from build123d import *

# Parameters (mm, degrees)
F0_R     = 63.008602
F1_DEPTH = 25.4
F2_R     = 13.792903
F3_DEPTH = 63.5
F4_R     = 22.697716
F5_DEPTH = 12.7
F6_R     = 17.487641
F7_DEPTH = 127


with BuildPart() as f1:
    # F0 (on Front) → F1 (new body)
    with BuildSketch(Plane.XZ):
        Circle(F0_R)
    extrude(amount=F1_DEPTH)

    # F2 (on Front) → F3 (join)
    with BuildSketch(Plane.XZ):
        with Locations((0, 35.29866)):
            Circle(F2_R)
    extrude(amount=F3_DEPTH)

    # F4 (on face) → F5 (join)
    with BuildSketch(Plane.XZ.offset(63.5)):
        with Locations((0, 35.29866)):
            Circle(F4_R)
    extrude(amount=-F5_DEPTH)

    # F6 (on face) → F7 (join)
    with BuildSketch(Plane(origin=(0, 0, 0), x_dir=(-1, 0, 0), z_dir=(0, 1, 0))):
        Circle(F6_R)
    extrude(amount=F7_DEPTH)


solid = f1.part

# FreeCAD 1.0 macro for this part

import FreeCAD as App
import Part
import Sketcher

doc = App.newDocument("Part")
params = doc.addObject("Spreadsheet::Sheet", "Params")
for row, (alias, value) in enumerate([
    ("pad1_length", "1 in"),
    ("pad2_length", "2.5 in"),
    ("pad3_length", "0.5 in"),
    ("pad4_length", "5 in"),
], start=1):
    params.set(f"A{row}", alias)
    params.set(f"B{row}", "=" + value)
    params.setAlias(f"B{row}", alias)

body = doc.addObject("PartDesign::Body", "Body")

# Sketch on XZ plane
sketch1 = body.newObject("Sketcher::SketchObject", "Sketch")
sketch1.AttachmentSupport = (doc.getObject("XZ_Plane"), [""])
sketch1.MapMode = "FlatFace"
sketch1.addGeometry(Part.Circle(App.Vector(0, 0, 0), App.Vector(0, 0, 1), 63), False)
sketch1.addConstraint([
    Sketcher.Constraint("Coincident", 0, 3, -1, 1),
    Sketcher.Constraint("Diameter", 0, 126.017204),
])
pad1 = body.newObject("PartDesign::Pad", "Pad")
pad1.Profile = sketch1
pad1.setExpression("Length", "Params.pad1_length")

# Sketch on XZ plane
sketch2 = body.newObject("Sketcher::SketchObject", "Sketch001")
sketch2.AttachmentSupport = (doc.getObject("XZ_Plane"), [""])
sketch2.MapMode = "FlatFace"
sketch2.addGeometry(Part.Circle(App.Vector(0, 35, 0), App.Vector(0, 0, 1), 14), False)
sketch2.addConstraint([
    Sketcher.Constraint("PointOnObject", 0, 3, -2),
    Sketcher.Constraint("Diameter", 0, 27.585806),
    Sketcher.Constraint("DistanceY", -1, 1, 0, 3, 35.29866),
])
pad2 = body.newObject("PartDesign::Pad", "Pad001")
pad2.Profile = sketch2
pad2.setExpression("Length", "Params.pad2_length")

# Sketch on XZ plane
sketch3 = body.newObject("Sketcher::SketchObject", "Sketch002")
sketch3.AttachmentSupport = (doc.getObject("XZ_Plane"), [""])
sketch3.MapMode = "FlatFace"
sketch3.AttachmentOffset = App.Placement(App.Vector(0, 0, 2.5 * 25.4), App.Rotation())
sketch3.addGeometry(Part.Circle(App.Vector(0, 35, 0), App.Vector(0, 0, 1), 23), False)
sketch3.addConstraint([
    Sketcher.Constraint("PointOnObject", 0, 3, -2),
    Sketcher.Constraint("Diameter", 0, 45.395432),
    Sketcher.Constraint("DistanceY", -1, 1, 0, 3, 35.29866),
])
pad3 = body.newObject("PartDesign::Pad", "Pad002")
pad3.Profile = sketch3
pad3.setExpression("Length", "Params.pad3_length")
pad3.Reversed = True

# Sketch on XZ plane
sketch4 = body.newObject("Sketcher::SketchObject", "Sketch003")
sketch4.AttachmentSupport = (doc.getObject("XZ_Plane"), [""])
sketch4.MapMode = "FlatFace"
sketch4.addGeometry(Part.Circle(App.Vector(0, 0, 0), App.Vector(0, 0, 1), 17), False)
sketch4.addConstraint([
    Sketcher.Constraint("Coincident", 0, 3, -1, 1),
    Sketcher.Constraint("Diameter", 0, 34.975282),
])
pad4 = body.newObject("PartDesign::Pad", "Pad003")
pad4.Profile = sketch4
pad4.setExpression("Length", "Params.pad4_length")
pad4.Reversed = True

doc.recompute()
